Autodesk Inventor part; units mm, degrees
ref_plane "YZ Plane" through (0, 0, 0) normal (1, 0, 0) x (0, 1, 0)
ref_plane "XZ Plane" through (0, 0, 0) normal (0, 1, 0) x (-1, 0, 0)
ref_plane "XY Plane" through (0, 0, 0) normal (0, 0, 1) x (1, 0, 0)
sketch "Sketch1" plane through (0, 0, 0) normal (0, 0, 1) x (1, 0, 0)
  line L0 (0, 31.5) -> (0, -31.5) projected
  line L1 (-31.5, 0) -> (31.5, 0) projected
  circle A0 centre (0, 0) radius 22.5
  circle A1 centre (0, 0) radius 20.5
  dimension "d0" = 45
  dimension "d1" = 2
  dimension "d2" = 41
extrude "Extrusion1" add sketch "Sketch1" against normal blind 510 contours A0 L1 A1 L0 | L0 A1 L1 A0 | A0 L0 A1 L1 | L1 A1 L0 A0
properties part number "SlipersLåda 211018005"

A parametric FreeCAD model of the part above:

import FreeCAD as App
import Part
import Sketcher
from FreeCAD import Vector

doc = App.newDocument("Part")
params = doc.addObject("Spreadsheet::Sheet", "Params")
for row, (alias, value) in enumerate([
    ("sketch1_diameter", "45 mm"),
    ("sketch1_diameter2", "41 mm"),
    ("pad1_length", "510 mm"),
], start=1):
    params.set(f"A{row}", alias)
    params.set(f"B{row}", "=" + value)
    params.setAlias(f"B{row}", alias)

body = doc.addObject("PartDesign::Body", "Body")

# Sketch on XY plane
sketch1 = body.newObject("Sketcher::SketchObject", "Sketch")
sketch1.AttachmentSupport = (doc.getObject("XY_Plane"), [""])
sketch1.MapMode = "FlatFace"
sketch1.addGeometry(Part.Circle(Vector(0, 0, 0), Vector(0, 0, 1), 22.5), False)
sketch1.addGeometry(Part.Circle(Vector(0, 0, 0), Vector(0, 0, 1), 20.5), False)
sketch1.addConstraint(Sketcher.Constraint("Coincident", 0, 3, -1, 1))
sketch1.addConstraint(Sketcher.Constraint("Coincident", 1, 3, -1, 1))
sketch1.addConstraint(Sketcher.Constraint("Diameter", 0, 45.0))
sketch1.addConstraint(Sketcher.Constraint("Diameter", 1, 41.0))
sketch1.setExpression("Constraints[2]", "Params.sketch1_diameter")
sketch1.setExpression("Constraints[3]", "Params.sketch1_diameter2")
pad1 = body.newObject("PartDesign::Pad", "Pad")
pad1.Profile = sketch1
pad1.setExpression("Length", "Params.pad1_length")
pad1.Reversed = True

doc.recompute()
